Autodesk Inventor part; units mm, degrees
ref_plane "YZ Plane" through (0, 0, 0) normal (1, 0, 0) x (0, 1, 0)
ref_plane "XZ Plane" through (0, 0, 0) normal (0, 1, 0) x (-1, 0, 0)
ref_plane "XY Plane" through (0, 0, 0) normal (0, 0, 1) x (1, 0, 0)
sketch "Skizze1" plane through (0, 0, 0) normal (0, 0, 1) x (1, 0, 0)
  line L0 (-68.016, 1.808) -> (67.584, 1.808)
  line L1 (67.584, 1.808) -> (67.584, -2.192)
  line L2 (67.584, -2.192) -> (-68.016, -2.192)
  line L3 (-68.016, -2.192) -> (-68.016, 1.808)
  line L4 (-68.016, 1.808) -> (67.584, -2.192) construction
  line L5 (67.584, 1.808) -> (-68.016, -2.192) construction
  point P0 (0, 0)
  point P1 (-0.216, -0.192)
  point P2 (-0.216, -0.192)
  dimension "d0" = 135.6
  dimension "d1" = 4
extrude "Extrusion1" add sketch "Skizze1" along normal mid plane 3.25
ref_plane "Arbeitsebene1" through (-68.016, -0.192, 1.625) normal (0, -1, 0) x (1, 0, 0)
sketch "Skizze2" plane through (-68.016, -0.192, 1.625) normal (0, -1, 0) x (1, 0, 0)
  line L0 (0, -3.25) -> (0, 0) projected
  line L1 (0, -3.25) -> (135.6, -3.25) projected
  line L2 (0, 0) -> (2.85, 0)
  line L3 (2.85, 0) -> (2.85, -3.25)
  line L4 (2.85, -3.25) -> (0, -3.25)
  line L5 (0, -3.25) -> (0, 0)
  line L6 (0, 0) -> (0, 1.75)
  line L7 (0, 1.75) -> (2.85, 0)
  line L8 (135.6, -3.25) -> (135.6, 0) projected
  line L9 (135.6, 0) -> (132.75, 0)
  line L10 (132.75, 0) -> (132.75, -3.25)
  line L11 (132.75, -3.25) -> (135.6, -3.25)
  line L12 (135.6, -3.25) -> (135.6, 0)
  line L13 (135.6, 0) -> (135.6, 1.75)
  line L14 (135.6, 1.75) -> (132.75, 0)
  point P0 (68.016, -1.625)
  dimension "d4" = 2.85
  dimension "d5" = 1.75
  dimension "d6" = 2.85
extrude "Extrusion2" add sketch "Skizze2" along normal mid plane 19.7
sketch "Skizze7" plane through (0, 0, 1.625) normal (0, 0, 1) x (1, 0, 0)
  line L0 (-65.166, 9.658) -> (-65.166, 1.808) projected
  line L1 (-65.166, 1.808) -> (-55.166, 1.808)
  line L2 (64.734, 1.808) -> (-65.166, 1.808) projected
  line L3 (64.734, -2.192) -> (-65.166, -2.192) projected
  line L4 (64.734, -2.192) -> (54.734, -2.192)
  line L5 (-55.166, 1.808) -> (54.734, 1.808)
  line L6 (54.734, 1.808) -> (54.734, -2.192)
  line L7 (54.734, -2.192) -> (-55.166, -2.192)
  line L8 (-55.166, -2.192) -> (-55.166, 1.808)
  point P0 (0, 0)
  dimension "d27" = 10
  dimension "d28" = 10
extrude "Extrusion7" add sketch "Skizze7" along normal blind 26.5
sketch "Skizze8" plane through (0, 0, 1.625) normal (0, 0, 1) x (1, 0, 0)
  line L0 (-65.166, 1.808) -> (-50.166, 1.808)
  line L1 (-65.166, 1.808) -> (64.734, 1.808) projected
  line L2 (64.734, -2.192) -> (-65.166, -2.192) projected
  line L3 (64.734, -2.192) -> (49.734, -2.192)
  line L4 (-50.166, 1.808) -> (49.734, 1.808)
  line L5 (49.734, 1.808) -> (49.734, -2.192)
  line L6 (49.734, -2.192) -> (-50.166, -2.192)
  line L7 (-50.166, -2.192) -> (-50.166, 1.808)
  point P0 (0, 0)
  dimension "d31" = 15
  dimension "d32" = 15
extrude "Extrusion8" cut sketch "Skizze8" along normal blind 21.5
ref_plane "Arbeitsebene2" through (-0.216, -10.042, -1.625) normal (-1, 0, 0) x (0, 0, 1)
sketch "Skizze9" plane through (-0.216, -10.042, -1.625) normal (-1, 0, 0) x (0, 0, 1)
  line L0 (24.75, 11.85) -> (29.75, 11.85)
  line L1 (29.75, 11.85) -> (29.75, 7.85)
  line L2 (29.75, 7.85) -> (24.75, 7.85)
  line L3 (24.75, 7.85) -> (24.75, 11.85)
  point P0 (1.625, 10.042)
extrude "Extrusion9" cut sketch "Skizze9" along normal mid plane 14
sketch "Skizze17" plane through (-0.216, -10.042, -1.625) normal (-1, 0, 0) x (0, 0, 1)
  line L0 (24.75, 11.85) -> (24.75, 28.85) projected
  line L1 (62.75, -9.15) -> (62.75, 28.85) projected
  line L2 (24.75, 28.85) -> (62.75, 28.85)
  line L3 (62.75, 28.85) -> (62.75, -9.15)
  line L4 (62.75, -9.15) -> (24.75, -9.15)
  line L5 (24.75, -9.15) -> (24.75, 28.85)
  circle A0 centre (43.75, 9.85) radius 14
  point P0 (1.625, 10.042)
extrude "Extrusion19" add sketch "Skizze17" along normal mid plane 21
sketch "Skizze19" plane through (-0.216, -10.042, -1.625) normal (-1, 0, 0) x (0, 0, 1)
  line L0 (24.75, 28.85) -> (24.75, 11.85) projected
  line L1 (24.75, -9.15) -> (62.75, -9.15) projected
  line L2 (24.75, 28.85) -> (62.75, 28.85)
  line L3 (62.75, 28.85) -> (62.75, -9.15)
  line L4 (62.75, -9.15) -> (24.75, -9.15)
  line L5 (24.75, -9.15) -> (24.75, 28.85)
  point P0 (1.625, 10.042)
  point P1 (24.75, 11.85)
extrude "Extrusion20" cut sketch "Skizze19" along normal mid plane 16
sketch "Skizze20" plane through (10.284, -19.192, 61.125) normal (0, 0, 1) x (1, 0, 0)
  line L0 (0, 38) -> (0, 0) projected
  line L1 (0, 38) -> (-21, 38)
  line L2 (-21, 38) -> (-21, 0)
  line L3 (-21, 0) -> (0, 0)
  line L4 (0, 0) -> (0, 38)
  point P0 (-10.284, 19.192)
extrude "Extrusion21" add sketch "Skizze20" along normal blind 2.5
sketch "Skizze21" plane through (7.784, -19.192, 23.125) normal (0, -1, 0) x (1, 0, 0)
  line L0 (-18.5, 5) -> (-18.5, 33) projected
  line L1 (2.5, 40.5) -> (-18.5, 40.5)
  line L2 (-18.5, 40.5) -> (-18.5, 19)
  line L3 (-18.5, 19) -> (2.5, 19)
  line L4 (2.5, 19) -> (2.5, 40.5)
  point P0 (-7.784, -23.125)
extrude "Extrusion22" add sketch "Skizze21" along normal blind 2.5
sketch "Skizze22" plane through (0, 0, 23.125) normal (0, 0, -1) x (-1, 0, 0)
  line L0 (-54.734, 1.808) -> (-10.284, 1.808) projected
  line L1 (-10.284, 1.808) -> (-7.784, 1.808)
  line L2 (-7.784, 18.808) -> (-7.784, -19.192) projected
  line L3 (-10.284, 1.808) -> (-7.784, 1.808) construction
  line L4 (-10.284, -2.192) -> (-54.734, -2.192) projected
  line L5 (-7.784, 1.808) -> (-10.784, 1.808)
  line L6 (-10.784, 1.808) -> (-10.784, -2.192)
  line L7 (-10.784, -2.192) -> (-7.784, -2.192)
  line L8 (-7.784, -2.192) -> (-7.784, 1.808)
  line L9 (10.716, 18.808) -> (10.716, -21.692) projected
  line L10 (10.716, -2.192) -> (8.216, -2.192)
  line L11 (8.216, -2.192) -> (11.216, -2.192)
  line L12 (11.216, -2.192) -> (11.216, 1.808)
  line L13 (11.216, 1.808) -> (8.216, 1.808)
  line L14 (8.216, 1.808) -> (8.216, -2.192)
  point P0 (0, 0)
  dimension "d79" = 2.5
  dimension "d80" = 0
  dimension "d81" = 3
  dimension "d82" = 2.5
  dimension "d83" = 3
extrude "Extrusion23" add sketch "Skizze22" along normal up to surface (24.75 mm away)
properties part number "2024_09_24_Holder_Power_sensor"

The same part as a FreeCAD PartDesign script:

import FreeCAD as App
import Part
import Sketcher
from FreeCAD import Vector


def add_polygon(sketch, points):
    """Adds a closed chain of lines whose ends are joined by coincident constraints."""
    first, n = sketch.GeometryCount, len(points)
    for a, b in zip(points, points[1:] + points[:1]):
        sketch.addGeometry(Part.LineSegment(App.Vector(*a, 0), App.Vector(*b, 0)), False)
    for i in range(n):
        sketch.addConstraint(Sketcher.Constraint("Coincident", first + i, 2, first + (i + 1) % n, 1))

doc = App.newDocument("Part")
params = doc.addObject("Spreadsheet::Sheet", "Params")
for row, (alias, value) in enumerate([
    ("sketch1_height", "4 mm"),
    ("sketch1_width", "135.6 mm"),
    ("pad1_length", "3.25 mm"),
    ("sketch2_width", "2.85 mm"),
    ("sketch2_height", "5 mm"),
    ("pad2_length", "19.7 mm"),
    ("sketch3_height", "4 mm"),
    ("sketch3_width", "109.9 mm"),
    ("pad3_length", "26.5 mm"),
    ("sketch4_height", "4 mm"),
    ("sketch4_width", "99.9 mm"),
    ("pocket1_length", "21.5 mm"),
    ("sketch5_width", "4 mm"),
    ("sketch5_height", "5 mm"),
    ("pocket2_length", "14 mm"),
    ("sketch6_diameter", "28 mm"),
    ("sketch6_width", "38 mm"),
    ("pad4_length", "21 mm"),
    ("sketch7_width", "38 mm"),
    ("pocket3_length", "16 mm"),
    ("sketch8_width", "21 mm"),
    ("sketch8_height", "38 mm"),
    ("pad5_length", "2.5 mm"),
    ("sketch9_width", "21 mm"),
    ("sketch9_height", "21.5 mm"),
    ("pad6_length", "2.5 mm"),
    ("sketch10_width", "3 mm"),
    ("sketch10_height", "4 mm"),
    ("pad7_length", "24.75 mm"),
], start=1):
    params.set(f"A{row}", alias)
    params.set(f"B{row}", "=" + value)
    params.setAlias(f"B{row}", alias)

body = doc.addObject("PartDesign::Body", "Body")

# Sketch on XY plane
sketch1 = body.newObject("Sketcher::SketchObject", "Sketch")
sketch1.AttachmentSupport = (doc.getObject("XY_Plane"), [""])
sketch1.MapMode = "FlatFace"
add_polygon(sketch1, [(67.6, 1.8), (-68, 1.8), (-68, -2.2), (67.6, -2.2)])  # lines 0-3
sketch1.addConstraint(Sketcher.Constraint("Horizontal", 0))
sketch1.addConstraint(Sketcher.Constraint("Vertical", 1))
sketch1.addConstraint(Sketcher.Constraint("Horizontal", 2))
sketch1.addConstraint(Sketcher.Constraint("Vertical", 3))
sketch1.addConstraint(Sketcher.Constraint("DistanceY", 1, 2, 1, 1, 4.0))
sketch1.addConstraint(Sketcher.Constraint("DistanceX", 0, 2, 0, 1, 135.6))
sketch1.addConstraint(Sketcher.Constraint("DistanceX", 0, 2, -1, 1, 68.016))
sketch1.addConstraint(Sketcher.Constraint("DistanceY", -1, 1, 0, 2, 1.808))
sketch1.setExpression("Constraints[8]", "Params.sketch1_height")
sketch1.setExpression("Constraints[9]", "Params.sketch1_width")
pad1 = body.newObject("PartDesign::Pad", "Pad")
pad1.Profile = sketch1
pad1.setExpression("Length", "Params.pad1_length")
pad1.Midplane = True

# Sketch on XZ plane
sketch2 = body.newObject("Sketcher::SketchObject", "Sketch001")
sketch2.AttachmentSupport = (doc.getObject("XZ_Plane"), [""])
sketch2.MapMode = "FlatFace"
sketch2.AttachmentOffset = App.Placement(Vector(0, 0, 0.192), App.Rotation())
add_polygon(sketch2, [(64.7, 1.6), (64.7, -1.6), (67.6, -1.6), (67.6, 3.4)])  # lines 0-3
add_polygon(sketch2, [(-68, -1.6), (-65.2, -1.6), (-65.2, 1.6), (-68, 3.4)])  # lines 4-7
sketch2.addConstraint(Sketcher.Constraint("Vertical", 0))
sketch2.addConstraint(Sketcher.Constraint("Horizontal", 1))
sketch2.addConstraint(Sketcher.Constraint("Vertical", 2))
sketch2.addConstraint(Sketcher.Constraint("Horizontal", 4))
sketch2.addConstraint(Sketcher.Constraint("Vertical", 5))
sketch2.addConstraint(Sketcher.Constraint("Vertical", 7))
sketch2.addConstraint(Sketcher.Constraint("Horizontal", 1, 2, 4, 2))
sketch2.addConstraint(Sketcher.Constraint("Horizontal", 3, 2, 5, 2))
sketch2.addConstraint(Sketcher.Constraint("Horizontal", 2, 2, 6, 2))
sketch2.addConstraint(Sketcher.Constraint("Equal", 1, 4))
sketch2.addConstraint(Sketcher.Constraint("DistanceX", 1, 1, 1, 2, 2.85))
sketch2.addConstraint(Sketcher.Constraint("DistanceY", 2, 1, 2, 2, 5.0))
sketch2.addConstraint(Sketcher.Constraint("DistanceY", 3, 2, 2, 2, 1.75))
sketch2.addConstraint(Sketcher.Constraint("DistanceX", 4, 2, 0, 2, 129.9))
sketch2.addConstraint(Sketcher.Constraint("DistanceX", -1, 1, 0, 2, 64.734))
sketch2.addConstraint(Sketcher.Constraint("DistanceY", 0, 2, -1, 1, 1.625))
sketch2.setExpression("Constraints[18]", "Params.sketch2_width")
sketch2.setExpression("Constraints[19]", "Params.sketch2_height")
pad2 = body.newObject("PartDesign::Pad", "Pad001")
pad2.Profile = sketch2
pad2.setExpression("Length", "Params.pad2_length")
pad2.Midplane = True

# Sketch on XY plane
sketch3 = body.newObject("Sketcher::SketchObject", "Sketch002")
sketch3.AttachmentSupport = (doc.getObject("XY_Plane"), [""])
sketch3.MapMode = "FlatFace"
sketch3.AttachmentOffset = App.Placement(Vector(0, 0, 1.625), App.Rotation())
add_polygon(sketch3, [(54.7, -2.2), (54.7, 1.8), (-55.2, 1.8), (-55.2, -2.2)])  # lines 0-3
sketch3.addConstraint(Sketcher.Constraint("Vertical", 0))
sketch3.addConstraint(Sketcher.Constraint("Horizontal", 1))
sketch3.addConstraint(Sketcher.Constraint("Vertical", 2))
sketch3.addConstraint(Sketcher.Constraint("Horizontal", 3))
sketch3.addConstraint(Sketcher.Constraint("DistanceY", 0, 1, 0, 2, 4.0))
sketch3.addConstraint(Sketcher.Constraint("DistanceX", 1, 2, 1, 1, 109.9))
sketch3.addConstraint(Sketcher.Constraint("DistanceX", -1, 1, 0, 2, 54.734))
sketch3.addConstraint(Sketcher.Constraint("DistanceY", -1, 1, 0, 2, 1.808))
sketch3.setExpression("Constraints[8]", "Params.sketch3_height")
sketch3.setExpression("Constraints[9]", "Params.sketch3_width")
pad3 = body.newObject("PartDesign::Pad", "Pad002")
pad3.Profile = sketch3
pad3.setExpression("Length", "Params.pad3_length")

# Sketch on XY plane
sketch4 = body.newObject("Sketcher::SketchObject", "Sketch003")
sketch4.AttachmentSupport = (doc.getObject("XY_Plane"), [""])
sketch4.MapMode = "FlatFace"
sketch4.AttachmentOffset = App.Placement(Vector(0, 0, 1.625), App.Rotation())
add_polygon(sketch4, [(49.7, 1.8), (-50.2, 1.8), (-50.2, -2.2), (49.7, -2.2)])  # lines 0-3
sketch4.addConstraint(Sketcher.Constraint("Horizontal", 0))
sketch4.addConstraint(Sketcher.Constraint("Vertical", 1))
sketch4.addConstraint(Sketcher.Constraint("Horizontal", 2))
sketch4.addConstraint(Sketcher.Constraint("Vertical", 3))
sketch4.addConstraint(Sketcher.Constraint("DistanceY", 1, 2, 1, 1, 4.0))
sketch4.addConstraint(Sketcher.Constraint("DistanceX", 0, 2, 0, 1, 99.9))
sketch4.addConstraint(Sketcher.Constraint("DistanceX", 0, 2, -1, 1, 50.166))
sketch4.addConstraint(Sketcher.Constraint("DistanceY", -1, 1, 0, 2, 1.808))
sketch4.setExpression("Constraints[8]", "Params.sketch4_height")
sketch4.setExpression("Constraints[9]", "Params.sketch4_width")
pocket1 = body.newObject("PartDesign::Pocket", "Pocket")
pocket1.Profile = sketch4
pocket1.setExpression("Length", "Params.pocket1_length")
pocket1.Reversed = True

# Sketch on YZ plane
sketch5 = body.newObject("Sketcher::SketchObject", "Sketch004")
sketch5.AttachmentSupport = (doc.getObject("YZ_Plane"), [""])
sketch5.MapMode = "FlatFace"
sketch5.AttachmentOffset = App.Placement(Vector(0, 0, -0.216), App.Rotation())
add_polygon(sketch5, [(1.8, 28.1), (1.8, 23.1), (-2.2, 23.1), (-2.2, 28.1)])  # lines 0-3
sketch5.addConstraint(Sketcher.Constraint("Vertical", 0))
sketch5.addConstraint(Sketcher.Constraint("Horizontal", 1))
sketch5.addConstraint(Sketcher.Constraint("Vertical", 2))
sketch5.addConstraint(Sketcher.Constraint("Horizontal", 3))
sketch5.addConstraint(Sketcher.Constraint("DistanceX", 1, 2, 1, 1, 4.0))
sketch5.addConstraint(Sketcher.Constraint("DistanceY", 0, 2, 0, 1, 5.0))
sketch5.addConstraint(Sketcher.Constraint("DistanceX", -1, 1, 0, 2, 1.808))
sketch5.addConstraint(Sketcher.Constraint("DistanceY", -1, 1, 0, 2, 23.125))
sketch5.setExpression("Constraints[8]", "Params.sketch5_width")
sketch5.setExpression("Constraints[9]", "Params.sketch5_height")
pocket2 = body.newObject("PartDesign::Pocket", "Pocket001")
pocket2.Profile = sketch5
pocket2.setExpression("Length", "Params.pocket2_length")
pocket2.Midplane = True

# Sketch on YZ plane
sketch6 = body.newObject("Sketcher::SketchObject", "Sketch005")
sketch6.AttachmentSupport = (doc.getObject("YZ_Plane"), [""])
sketch6.MapMode = "FlatFace"
sketch6.AttachmentOffset = App.Placement(Vector(0, 0, -0.216), App.Rotation())
add_polygon(sketch6, [(19, 23), (-19, 23), (-19, 61), (19, 61)])  # lines 0-3
sketch6.addGeometry(Part.Circle(Vector(0, 42, 0), Vector(0, 0, 1), 14), False)  # 4
sketch6.addConstraint(Sketcher.Constraint("Horizontal", 0))
sketch6.addConstraint(Sketcher.Constraint("Vertical", 1))
sketch6.addConstraint(Sketcher.Constraint("Horizontal", 2))
sketch6.addConstraint(Sketcher.Constraint("Vertical", 3))
sketch6.addConstraint(Sketcher.Constraint("Equal", 2, 1))
sketch6.addConstraint(Sketcher.Constraint("Diameter", 4, 28.0))
sketch6.addConstraint(Sketcher.Constraint("DistanceX", 0, 2, 0, 1, 38.0))
sketch6.addConstraint(Sketcher.Constraint("DistanceX", 0, 2, 4, 3, 19.0))
sketch6.addConstraint(Sketcher.Constraint("DistanceY", 0, 2, 4, 3, 19.0))
sketch6.addConstraint(Sketcher.Constraint("DistanceX", 4, 3, -1, 1, 0.192))
sketch6.addConstraint(Sketcher.Constraint("DistanceY", -1, 1, 4, 3, 42.125))
sketch6.setExpression("Constraints[9]", "Params.sketch6_diameter")
sketch6.setExpression("Constraints[10]", "Params.sketch6_width")
pad4 = body.newObject("PartDesign::Pad", "Pad003")
pad4.Profile = sketch6
pad4.setExpression("Length", "Params.pad4_length")
pad4.Midplane = True

# Sketch on YZ plane
sketch7 = body.newObject("Sketcher::SketchObject", "Sketch006")
sketch7.AttachmentSupport = (doc.getObject("YZ_Plane"), [""])
sketch7.MapMode = "FlatFace"
sketch7.AttachmentOffset = App.Placement(Vector(0, 0, -0.216), App.Rotation())
add_polygon(sketch7, [(19, 61), (19, 23), (-19, 23), (-19, 61)])  # lines 0-3
sketch7.addConstraint(Sketcher.Constraint("Vertical", 0))
sketch7.addConstraint(Sketcher.Constraint("Horizontal", 1))
sketch7.addConstraint(Sketcher.Constraint("Vertical", 2))
sketch7.addConstraint(Sketcher.Constraint("Horizontal", 3))
sketch7.addConstraint(Sketcher.Constraint("Equal", 3, 0))
sketch7.addConstraint(Sketcher.Constraint("DistanceX", 1, 2, 1, 1, 38.0))
sketch7.addConstraint(Sketcher.Constraint("DistanceX", -1, 1, 0, 2, 18.808))
sketch7.addConstraint(Sketcher.Constraint("DistanceY", -1, 1, 0, 2, 23.125))
sketch7.setExpression("Constraints[9]", "Params.sketch7_width")
pocket3 = body.newObject("PartDesign::Pocket", "Pocket002")
pocket3.Profile = sketch7
pocket3.setExpression("Length", "Params.pocket3_length")
pocket3.Midplane = True

# Sketch on XY plane
sketch8 = body.newObject("Sketcher::SketchObject", "Sketch007")
sketch8.AttachmentSupport = (doc.getObject("XY_Plane"), [""])
sketch8.MapMode = "FlatFace"
sketch8.AttachmentOffset = App.Placement(Vector(0, 0, 61.125), App.Rotation())
add_polygon(sketch8, [(10, -19), (10, 19), (-11, 19), (-11, -19)])  # lines 0-3
sketch8.addConstraint(Sketcher.Constraint("Vertical", 0))
sketch8.addConstraint(Sketcher.Constraint("Horizontal", 1))
sketch8.addConstraint(Sketcher.Constraint("Vertical", 2))
sketch8.addConstraint(Sketcher.Constraint("Horizontal", 3))
sketch8.addConstraint(Sketcher.Constraint("DistanceX", 1, 2, 1, 1, 21.0))
sketch8.addConstraint(Sketcher.Constraint("DistanceY", 0, 1, 0, 2, 38.0))
sketch8.addConstraint(Sketcher.Constraint("DistanceX", -1, 1, 0, 2, 10.284))
sketch8.addConstraint(Sketcher.Constraint("DistanceY", -1, 1, 0, 2, 18.808))
sketch8.setExpression("Constraints[8]", "Params.sketch8_width")
sketch8.setExpression("Constraints[9]", "Params.sketch8_height")
pad5 = body.newObject("PartDesign::Pad", "Pad004")
pad5.Profile = sketch8
pad5.setExpression("Length", "Params.pad5_length")

# Sketch on XZ plane
sketch9 = body.newObject("Sketcher::SketchObject", "Sketch008")
sketch9.AttachmentSupport = (doc.getObject("XZ_Plane"), [""])
sketch9.MapMode = "FlatFace"
sketch9.AttachmentOffset = App.Placement(Vector(0, 0, 19.192), App.Rotation())
add_polygon(sketch9, [(-11, 64), (-11, 42), (10, 42), (10, 64)])  # lines 0-3
sketch9.addConstraint(Sketcher.Constraint("Vertical", 0))
sketch9.addConstraint(Sketcher.Constraint("Horizontal", 1))
sketch9.addConstraint(Sketcher.Constraint("Vertical", 2))
sketch9.addConstraint(Sketcher.Constraint("Horizontal", 3))
sketch9.addConstraint(Sketcher.Constraint("DistanceX", 1, 1, 1, 2, 21.0))
sketch9.addConstraint(Sketcher.Constraint("DistanceY", 0, 2, 0, 1, 21.5))
sketch9.addConstraint(Sketcher.Constraint("DistanceX", 0, 2, -1, 1, 10.716))
sketch9.addConstraint(Sketcher.Constraint("DistanceY", -1, 1, 0, 2, 42.125))
sketch9.setExpression("Constraints[8]", "Params.sketch9_width")
sketch9.setExpression("Constraints[9]", "Params.sketch9_height")
pad6 = body.newObject("PartDesign::Pad", "Pad005")
pad6.Profile = sketch9
pad6.setExpression("Length", "Params.pad6_length")

# Sketch on XY plane
sketch10 = body.newObject("Sketcher::SketchObject", "Sketch009")
sketch10.AttachmentSupport = (doc.getObject("XY_Plane"), [""])
sketch10.MapMode = "FlatFace"
sketch10.AttachmentOffset = App.Placement(Vector(0, 0, 23.125), App.Rotation())
add_polygon(sketch10, [(7.8, 1.8), (10.8, 1.8), (10.8, -2.2), (7.8, -2.2)])  # lines 0-3
add_polygon(sketch10, [(-11.2, 1.8), (-8.2, 1.8), (-8.2, -2.2), (-11.2, -2.2)])  # lines 4-7
sketch10.addConstraint(Sketcher.Constraint("Horizontal", 0))
sketch10.addConstraint(Sketcher.Constraint("Vertical", 1))
sketch10.addConstraint(Sketcher.Constraint("Horizontal", 2))
sketch10.addConstraint(Sketcher.Constraint("Vertical", 3))
sketch10.addConstraint(Sketcher.Constraint("Horizontal", 4))
sketch10.addConstraint(Sketcher.Constraint("Vertical", 5))
sketch10.addConstraint(Sketcher.Constraint("Horizontal", 6))
sketch10.addConstraint(Sketcher.Constraint("Vertical", 7))
sketch10.addConstraint(Sketcher.Constraint("Horizontal", 3, 2, 4, 2))
sketch10.addConstraint(Sketcher.Constraint("Horizontal", 2, 2, 5, 2))
sketch10.addConstraint(Sketcher.Constraint("Equal", 2, 4))
sketch10.addConstraint(Sketcher.Constraint("DistanceX", 0, 1, 0, 2, 3.0))
sketch10.addConstraint(Sketcher.Constraint("DistanceY", 1, 2, 1, 1, 4.0))
sketch10.addConstraint(Sketcher.Constraint("DistanceX", 4, 2, 3, 2, 16.0))
sketch10.addConstraint(Sketcher.Constraint("DistanceX", -1, 1, 0, 2, 10.784))
sketch10.addConstraint(Sketcher.Constraint("DistanceY", -1, 1, 0, 2, 1.808))
sketch10.setExpression("Constraints[19]", "Params.sketch10_width")
sketch10.setExpression("Constraints[20]", "Params.sketch10_height")
pad7 = body.newObject("PartDesign::Pad", "Pad006")
pad7.Profile = sketch10
pad7.setExpression("Length", "Params.pad7_length")
pad7.Reversed = True

doc.recompute()
